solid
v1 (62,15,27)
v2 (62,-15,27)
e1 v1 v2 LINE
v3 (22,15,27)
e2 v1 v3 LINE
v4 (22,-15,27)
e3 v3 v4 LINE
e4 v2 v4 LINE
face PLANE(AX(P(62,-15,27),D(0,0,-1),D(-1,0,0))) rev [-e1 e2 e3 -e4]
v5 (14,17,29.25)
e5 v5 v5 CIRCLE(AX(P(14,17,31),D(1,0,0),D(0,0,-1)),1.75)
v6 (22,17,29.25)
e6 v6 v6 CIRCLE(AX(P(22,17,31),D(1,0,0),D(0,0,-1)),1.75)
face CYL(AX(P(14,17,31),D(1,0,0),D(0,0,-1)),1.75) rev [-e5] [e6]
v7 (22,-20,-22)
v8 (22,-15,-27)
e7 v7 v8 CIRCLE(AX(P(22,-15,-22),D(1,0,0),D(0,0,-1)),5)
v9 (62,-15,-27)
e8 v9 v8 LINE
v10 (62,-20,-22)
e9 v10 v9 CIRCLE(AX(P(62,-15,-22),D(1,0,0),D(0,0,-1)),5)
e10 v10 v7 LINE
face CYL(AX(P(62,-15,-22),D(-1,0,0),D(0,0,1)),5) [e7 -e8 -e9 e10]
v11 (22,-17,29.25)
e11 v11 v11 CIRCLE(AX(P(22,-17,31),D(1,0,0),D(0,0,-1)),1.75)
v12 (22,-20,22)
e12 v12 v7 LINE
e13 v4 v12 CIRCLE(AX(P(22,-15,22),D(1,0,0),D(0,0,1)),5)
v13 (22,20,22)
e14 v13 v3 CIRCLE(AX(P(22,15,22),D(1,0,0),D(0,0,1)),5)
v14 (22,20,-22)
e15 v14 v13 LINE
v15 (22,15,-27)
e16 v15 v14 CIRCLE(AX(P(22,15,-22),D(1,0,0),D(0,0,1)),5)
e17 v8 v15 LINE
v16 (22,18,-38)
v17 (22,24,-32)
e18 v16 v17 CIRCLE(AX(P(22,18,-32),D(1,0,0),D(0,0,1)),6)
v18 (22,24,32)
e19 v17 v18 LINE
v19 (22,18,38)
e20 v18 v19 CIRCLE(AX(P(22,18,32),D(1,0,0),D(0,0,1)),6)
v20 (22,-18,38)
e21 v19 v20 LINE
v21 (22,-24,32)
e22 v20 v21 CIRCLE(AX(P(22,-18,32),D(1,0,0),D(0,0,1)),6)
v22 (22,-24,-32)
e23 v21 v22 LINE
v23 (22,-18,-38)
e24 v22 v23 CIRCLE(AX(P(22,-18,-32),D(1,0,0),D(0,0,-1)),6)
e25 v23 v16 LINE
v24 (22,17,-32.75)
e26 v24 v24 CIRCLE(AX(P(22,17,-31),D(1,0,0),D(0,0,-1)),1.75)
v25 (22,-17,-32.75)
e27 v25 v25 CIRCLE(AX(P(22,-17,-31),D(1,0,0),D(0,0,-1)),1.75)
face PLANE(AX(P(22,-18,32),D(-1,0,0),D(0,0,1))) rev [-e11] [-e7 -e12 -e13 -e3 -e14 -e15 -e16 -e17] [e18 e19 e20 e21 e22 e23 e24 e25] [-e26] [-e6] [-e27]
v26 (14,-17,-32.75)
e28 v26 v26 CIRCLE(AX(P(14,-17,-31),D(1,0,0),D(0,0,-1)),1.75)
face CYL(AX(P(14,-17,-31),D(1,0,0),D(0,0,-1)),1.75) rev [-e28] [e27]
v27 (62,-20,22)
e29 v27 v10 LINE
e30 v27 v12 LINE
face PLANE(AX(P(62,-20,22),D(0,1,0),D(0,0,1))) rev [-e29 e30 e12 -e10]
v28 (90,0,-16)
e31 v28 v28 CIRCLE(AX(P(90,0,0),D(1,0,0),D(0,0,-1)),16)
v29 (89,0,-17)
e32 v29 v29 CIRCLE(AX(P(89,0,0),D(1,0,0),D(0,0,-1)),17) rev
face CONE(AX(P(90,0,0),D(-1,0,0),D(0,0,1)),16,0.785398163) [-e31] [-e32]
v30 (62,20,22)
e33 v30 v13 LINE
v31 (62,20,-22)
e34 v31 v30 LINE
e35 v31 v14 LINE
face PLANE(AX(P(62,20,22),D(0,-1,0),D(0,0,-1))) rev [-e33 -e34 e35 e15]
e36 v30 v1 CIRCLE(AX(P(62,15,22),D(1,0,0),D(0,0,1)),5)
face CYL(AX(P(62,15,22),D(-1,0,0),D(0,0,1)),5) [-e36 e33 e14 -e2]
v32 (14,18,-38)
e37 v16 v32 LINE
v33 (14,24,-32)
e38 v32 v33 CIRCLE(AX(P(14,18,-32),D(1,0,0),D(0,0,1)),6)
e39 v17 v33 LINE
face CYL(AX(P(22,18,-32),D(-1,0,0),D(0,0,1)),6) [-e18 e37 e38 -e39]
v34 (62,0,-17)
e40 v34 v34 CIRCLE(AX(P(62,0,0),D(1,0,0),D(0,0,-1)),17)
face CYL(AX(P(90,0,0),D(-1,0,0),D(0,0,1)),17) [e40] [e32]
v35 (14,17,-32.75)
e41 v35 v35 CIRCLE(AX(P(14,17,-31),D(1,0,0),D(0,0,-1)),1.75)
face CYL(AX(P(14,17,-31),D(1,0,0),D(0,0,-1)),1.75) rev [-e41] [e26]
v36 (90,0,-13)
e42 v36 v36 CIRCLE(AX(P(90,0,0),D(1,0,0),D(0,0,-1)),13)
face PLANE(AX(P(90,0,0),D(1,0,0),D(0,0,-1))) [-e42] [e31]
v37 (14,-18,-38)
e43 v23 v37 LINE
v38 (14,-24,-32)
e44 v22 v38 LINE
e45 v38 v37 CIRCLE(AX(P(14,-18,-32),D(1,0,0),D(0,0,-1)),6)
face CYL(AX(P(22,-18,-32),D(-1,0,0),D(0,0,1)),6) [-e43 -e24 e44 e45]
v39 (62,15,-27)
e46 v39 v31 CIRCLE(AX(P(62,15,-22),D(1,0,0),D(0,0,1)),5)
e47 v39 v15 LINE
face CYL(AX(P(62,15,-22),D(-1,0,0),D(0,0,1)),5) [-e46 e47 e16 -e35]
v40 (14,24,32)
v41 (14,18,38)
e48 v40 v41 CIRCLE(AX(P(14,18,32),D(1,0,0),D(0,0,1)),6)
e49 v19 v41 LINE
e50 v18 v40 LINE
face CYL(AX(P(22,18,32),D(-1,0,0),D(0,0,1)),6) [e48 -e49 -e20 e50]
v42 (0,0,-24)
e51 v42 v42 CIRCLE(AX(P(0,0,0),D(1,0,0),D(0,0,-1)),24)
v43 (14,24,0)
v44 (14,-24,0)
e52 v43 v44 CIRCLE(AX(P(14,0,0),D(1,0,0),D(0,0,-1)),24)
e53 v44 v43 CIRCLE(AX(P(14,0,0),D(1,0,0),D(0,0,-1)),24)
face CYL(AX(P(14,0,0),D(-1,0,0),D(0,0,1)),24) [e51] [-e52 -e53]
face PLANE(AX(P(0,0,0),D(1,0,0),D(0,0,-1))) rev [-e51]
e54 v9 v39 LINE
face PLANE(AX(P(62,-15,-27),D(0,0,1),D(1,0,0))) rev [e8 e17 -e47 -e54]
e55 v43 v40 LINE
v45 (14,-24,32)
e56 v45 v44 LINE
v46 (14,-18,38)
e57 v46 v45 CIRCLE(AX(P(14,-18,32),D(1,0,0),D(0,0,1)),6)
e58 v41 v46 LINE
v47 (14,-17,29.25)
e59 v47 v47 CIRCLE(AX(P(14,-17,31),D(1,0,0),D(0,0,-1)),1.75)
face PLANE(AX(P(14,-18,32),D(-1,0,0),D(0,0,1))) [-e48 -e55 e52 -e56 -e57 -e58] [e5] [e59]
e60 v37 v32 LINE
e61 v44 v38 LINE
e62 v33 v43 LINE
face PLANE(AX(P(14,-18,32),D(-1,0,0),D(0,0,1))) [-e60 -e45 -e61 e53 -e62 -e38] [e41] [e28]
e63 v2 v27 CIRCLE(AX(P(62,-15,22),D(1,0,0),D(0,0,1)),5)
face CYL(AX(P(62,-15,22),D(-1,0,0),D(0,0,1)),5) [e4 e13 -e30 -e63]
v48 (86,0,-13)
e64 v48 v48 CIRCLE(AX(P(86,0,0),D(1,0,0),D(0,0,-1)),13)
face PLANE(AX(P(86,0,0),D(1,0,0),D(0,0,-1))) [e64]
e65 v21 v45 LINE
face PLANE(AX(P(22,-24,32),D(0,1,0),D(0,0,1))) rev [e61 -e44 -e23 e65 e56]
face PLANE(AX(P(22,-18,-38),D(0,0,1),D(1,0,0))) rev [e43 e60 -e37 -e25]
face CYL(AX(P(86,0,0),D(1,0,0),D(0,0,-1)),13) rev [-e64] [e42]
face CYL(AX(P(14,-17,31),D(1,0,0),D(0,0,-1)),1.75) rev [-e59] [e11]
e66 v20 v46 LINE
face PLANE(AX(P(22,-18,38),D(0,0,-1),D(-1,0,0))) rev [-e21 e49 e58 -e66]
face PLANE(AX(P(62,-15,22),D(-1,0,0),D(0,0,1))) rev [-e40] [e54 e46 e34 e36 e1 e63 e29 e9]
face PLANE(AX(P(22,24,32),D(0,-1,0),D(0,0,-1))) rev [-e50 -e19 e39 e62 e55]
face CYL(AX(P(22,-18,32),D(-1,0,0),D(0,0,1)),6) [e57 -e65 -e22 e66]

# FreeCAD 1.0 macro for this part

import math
import FreeCAD as App
import Part
import Sketcher
from FreeCAD import Vector


def edges_at(feature, points):
    """Names of the edges that pass closest to the given points."""
    edges = feature.Shape.Edges
    near = lambda p: min(range(len(edges)), key=lambda i: edges[i].distToShape(Part.Vertex(*p))[0])
    return sorted({f"Edge{near(p) + 1}" for p in points})

doc = App.newDocument("Part")
body = doc.addObject("PartDesign::Body", "Body")

sketch1 = doc.addObject("Sketcher::SketchObject", "Sketch")
body.addObject(sketch1)
sketch1.AttachmentSupport = (doc.YZ_Plane, [""])
sketch1.MapMode = "FlatFace"
sketch1.addGeometry(Part.Circle(Vector(0, 0, 0), Vector(0, 0, 1), 24), False)
sketch1.addConstraint(Sketcher.Constraint("Coincident", 0, 3, -1, 1))
sketch1.addConstraint(Sketcher.Constraint("Diameter", 0, 48.0))
pad1 = doc.addObject("PartDesign::Pad", "Pad")
body.addObject(pad1)
pad1.Profile = sketch1
pad1.Length = 14

sketch2 = doc.addObject("Sketcher::SketchObject", "Sketch001")
body.addObject(sketch2)
sketch2.AttachmentSupport = (doc.YZ_Plane, [""])
sketch2.MapMode = "FlatFace"
sketch2.AttachmentOffset = App.Placement(Vector(0, 0, 14), App.Rotation())
sketch2.addGeometry(Part.LineSegment(Vector(-24, 32, 0), Vector(-24, -32, 0)), False)
sketch2.addGeometry(Part.ArcOfCircle(Part.Circle(Vector(-18, -32, 0), Vector(0, 0, 1), 6), math.radians(180), math.radians(270)), False)
sketch2.addGeometry(Part.LineSegment(Vector(-18, -38, 0), Vector(18, -38, 0)), False)
sketch2.addGeometry(Part.ArcOfCircle(Part.Circle(Vector(18, -32, 0), Vector(0, 0, 1), 6), math.radians(-90), math.radians(0)), False)
sketch2.addGeometry(Part.LineSegment(Vector(24, -32, 0), Vector(24, 32, 0)), False)
sketch2.addGeometry(Part.ArcOfCircle(Part.Circle(Vector(18, 32, 0), Vector(0, 0, 1), 6), math.radians(0), math.radians(90)), False)
sketch2.addGeometry(Part.LineSegment(Vector(18, 38, 0), Vector(-18, 38, 0)), False)
sketch2.addGeometry(Part.ArcOfCircle(Part.Circle(Vector(-18, 32, 0), Vector(0, 0, 1), 6), math.radians(90), math.radians(180)), False)
sketch2.addConstraint(Sketcher.Constraint("Tangent", 0, 2, 1, 1))
sketch2.addConstraint(Sketcher.Constraint("Tangent", 1, 2, 2, 1))
sketch2.addConstraint(Sketcher.Constraint("Tangent", 2, 2, 3, 1))
sketch2.addConstraint(Sketcher.Constraint("Tangent", 3, 2, 4, 1))
sketch2.addConstraint(Sketcher.Constraint("Tangent", 4, 2, 5, 1))
sketch2.addConstraint(Sketcher.Constraint("Tangent", 5, 2, 6, 1))
sketch2.addConstraint(Sketcher.Constraint("Tangent", 6, 2, 7, 1))
sketch2.addConstraint(Sketcher.Constraint("Tangent", 7, 2, 0, 1))
sketch2.addConstraint(Sketcher.Constraint("Vertical", 0))
sketch2.addConstraint(Sketcher.Constraint("Horizontal", 2))
sketch2.addConstraint(Sketcher.Constraint("Vertical", 4))
sketch2.addConstraint(Sketcher.Constraint("Horizontal", 6))
sketch2.addConstraint(Sketcher.Constraint("Equal", 1, 3))
sketch2.addConstraint(Sketcher.Constraint("Equal", 3, 5))
sketch2.addConstraint(Sketcher.Constraint("Equal", 5, 7))
sketch2.addConstraint(Sketcher.Constraint("Symmetric", 1, 3, 5, 3, -1, 1))
sketch2.addConstraint(Sketcher.Constraint("Radius", 1, 6.0))
sketch2.addConstraint(Sketcher.Constraint("DistanceX", 2, 1, 2, 2, 36.0))
sketch2.addConstraint(Sketcher.Constraint("DistanceY", 0, 2, 0, 1, 64.0))
pad2 = doc.addObject("PartDesign::Pad", "Pad001")
body.addObject(pad2)
pad2.Profile = sketch2
pad2.Length = 8

sketch3 = doc.addObject("Sketcher::SketchObject", "Sketch002")
body.addObject(sketch3)
sketch3.AttachmentSupport = (doc.YZ_Plane, [""])
sketch3.MapMode = "FlatFace"
sketch3.AttachmentOffset = App.Placement(Vector(0, 0, 22), App.Rotation())
sketch3.addGeometry(Part.Circle(Vector(17, -31, 0), Vector(0, 0, 1), 1.8), False)
sketch3.addGeometry(Part.Circle(Vector(17, 31, 0), Vector(0, 0, 1), 1.8), False)
sketch3.addGeometry(Part.Circle(Vector(-17, 31, 0), Vector(0, 0, 1), 1.8), False)
sketch3.addGeometry(Part.Circle(Vector(-17, -31, 0), Vector(0, 0, 1), 1.8), False)
sketch3.addConstraint(Sketcher.Constraint("Equal", 0, 1))
sketch3.addConstraint(Sketcher.Constraint("Equal", 1, 2))
sketch3.addConstraint(Sketcher.Constraint("Equal", 2, 3))
sketch3.addConstraint(Sketcher.Constraint("Symmetric", 0, 3, 2, 3, -1, 1))
sketch3.addConstraint(Sketcher.Constraint("Symmetric", 1, 3, 3, 3, -1, 1))
sketch3.addConstraint(Sketcher.Constraint("Symmetric", 1, 3, 2, 3, -2))
sketch3.addConstraint(Sketcher.Constraint("Diameter", 0, 3.5))
sketch3.addConstraint(Sketcher.Constraint("DistanceX", -1, 1, 0, 3, 17.0))
sketch3.addConstraint(Sketcher.Constraint("DistanceY", 0, 3, -1, 1, 31.0))
pocket1 = doc.addObject("PartDesign::Pocket", "Pocket")
body.addObject(pocket1)
pocket1.Profile = sketch3
pocket1.Length = 8

sketch4 = doc.addObject("Sketcher::SketchObject", "Sketch003")
body.addObject(sketch4)
sketch4.AttachmentSupport = (doc.YZ_Plane, [""])
sketch4.MapMode = "FlatFace"
sketch4.AttachmentOffset = App.Placement(Vector(0, 0, 22), App.Rotation())
sketch4.addGeometry(Part.LineSegment(Vector(-20, 22, 0), Vector(-20, -22, 0)), False)
sketch4.addGeometry(Part.ArcOfCircle(Part.Circle(Vector(-15, -22, 0), Vector(0, 0, 1), 5), math.radians(180), math.radians(270)), False)
sketch4.addGeometry(Part.LineSegment(Vector(-15, -27, 0), Vector(15, -27, 0)), False)
sketch4.addGeometry(Part.ArcOfCircle(Part.Circle(Vector(15, -22, 0), Vector(0, 0, 1), 5), math.radians(-90), math.radians(0)), False)
sketch4.addGeometry(Part.LineSegment(Vector(20, -22, 0), Vector(20, 22, 0)), False)
sketch4.addGeometry(Part.ArcOfCircle(Part.Circle(Vector(15, 22, 0), Vector(0, 0, 1), 5), math.radians(0), math.radians(90)), False)
sketch4.addGeometry(Part.LineSegment(Vector(15, 27, 0), Vector(-15, 27, 0)), False)
sketch4.addGeometry(Part.ArcOfCircle(Part.Circle(Vector(-15, 22, 0), Vector(0, 0, 1), 5), math.radians(90), math.radians(180)), False)
sketch4.addConstraint(Sketcher.Constraint("Tangent", 0, 2, 1, 1))
sketch4.addConstraint(Sketcher.Constraint("Tangent", 1, 2, 2, 1))
sketch4.addConstraint(Sketcher.Constraint("Tangent", 2, 2, 3, 1))
sketch4.addConstraint(Sketcher.Constraint("Tangent", 3, 2, 4, 1))
sketch4.addConstraint(Sketcher.Constraint("Tangent", 4, 2, 5, 1))
sketch4.addConstraint(Sketcher.Constraint("Tangent", 5, 2, 6, 1))
sketch4.addConstraint(Sketcher.Constraint("Tangent", 6, 2, 7, 1))
sketch4.addConstraint(Sketcher.Constraint("Tangent", 7, 2, 0, 1))
sketch4.addConstraint(Sketcher.Constraint("Vertical", 0))
sketch4.addConstraint(Sketcher.Constraint("Horizontal", 2))
sketch4.addConstraint(Sketcher.Constraint("Vertical", 4))
sketch4.addConstraint(Sketcher.Constraint("Horizontal", 6))
sketch4.addConstraint(Sketcher.Constraint("Equal", 1, 3))
sketch4.addConstraint(Sketcher.Constraint("Equal", 3, 5))
sketch4.addConstraint(Sketcher.Constraint("Equal", 5, 7))
sketch4.addConstraint(Sketcher.Constraint("Symmetric", 1, 3, 5, 3, -1, 1))
sketch4.addConstraint(Sketcher.Constraint("Radius", 1, 5.0))
sketch4.addConstraint(Sketcher.Constraint("DistanceX", 2, 1, 2, 2, 30.0))
sketch4.addConstraint(Sketcher.Constraint("DistanceY", 0, 2, 0, 1, 44.0))
pad3 = doc.addObject("PartDesign::Pad", "Pad002")
body.addObject(pad3)
pad3.Profile = sketch4
pad3.Length = 40

sketch5 = doc.addObject("Sketcher::SketchObject", "Sketch004")
body.addObject(sketch5)
sketch5.AttachmentSupport = (doc.YZ_Plane, [""])
sketch5.MapMode = "FlatFace"
sketch5.AttachmentOffset = App.Placement(Vector(0, 0, 62), App.Rotation())
sketch5.addGeometry(Part.Circle(Vector(0, 0, 0), Vector(0, 0, 1), 17), False)
sketch5.addConstraint(Sketcher.Constraint("Coincident", 0, 3, -1, 1))
sketch5.addConstraint(Sketcher.Constraint("Diameter", 0, 34.0))
pad4 = doc.addObject("PartDesign::Pad", "Pad003")
body.addObject(pad4)
pad4.Profile = sketch5
pad4.Length = 28

sketch6 = doc.addObject("Sketcher::SketchObject", "Sketch005")
body.addObject(sketch6)
sketch6.AttachmentSupport = (doc.YZ_Plane, [""])
sketch6.MapMode = "FlatFace"
sketch6.AttachmentOffset = App.Placement(Vector(0, 0, 90), App.Rotation())
sketch6.addGeometry(Part.Circle(Vector(0, 0, 0), Vector(0, 0, 1), 13), False)
sketch6.addConstraint(Sketcher.Constraint("Coincident", 0, 3, -1, 1))
sketch6.addConstraint(Sketcher.Constraint("Diameter", 0, 26.0))
pocket2 = doc.addObject("PartDesign::Pocket", "Pocket001")
body.addObject(pocket2)
pocket2.Profile = sketch6
pocket2.Length = 4
doc.recompute()

chamfer = doc.addObject("PartDesign::Chamfer", "Chamfer")
body.addObject(chamfer)
chamfer.Base = (pocket2, edges_at(pocket2, [(90, 0, 17)]))
chamfer.Size = 1

doc.recompute()
